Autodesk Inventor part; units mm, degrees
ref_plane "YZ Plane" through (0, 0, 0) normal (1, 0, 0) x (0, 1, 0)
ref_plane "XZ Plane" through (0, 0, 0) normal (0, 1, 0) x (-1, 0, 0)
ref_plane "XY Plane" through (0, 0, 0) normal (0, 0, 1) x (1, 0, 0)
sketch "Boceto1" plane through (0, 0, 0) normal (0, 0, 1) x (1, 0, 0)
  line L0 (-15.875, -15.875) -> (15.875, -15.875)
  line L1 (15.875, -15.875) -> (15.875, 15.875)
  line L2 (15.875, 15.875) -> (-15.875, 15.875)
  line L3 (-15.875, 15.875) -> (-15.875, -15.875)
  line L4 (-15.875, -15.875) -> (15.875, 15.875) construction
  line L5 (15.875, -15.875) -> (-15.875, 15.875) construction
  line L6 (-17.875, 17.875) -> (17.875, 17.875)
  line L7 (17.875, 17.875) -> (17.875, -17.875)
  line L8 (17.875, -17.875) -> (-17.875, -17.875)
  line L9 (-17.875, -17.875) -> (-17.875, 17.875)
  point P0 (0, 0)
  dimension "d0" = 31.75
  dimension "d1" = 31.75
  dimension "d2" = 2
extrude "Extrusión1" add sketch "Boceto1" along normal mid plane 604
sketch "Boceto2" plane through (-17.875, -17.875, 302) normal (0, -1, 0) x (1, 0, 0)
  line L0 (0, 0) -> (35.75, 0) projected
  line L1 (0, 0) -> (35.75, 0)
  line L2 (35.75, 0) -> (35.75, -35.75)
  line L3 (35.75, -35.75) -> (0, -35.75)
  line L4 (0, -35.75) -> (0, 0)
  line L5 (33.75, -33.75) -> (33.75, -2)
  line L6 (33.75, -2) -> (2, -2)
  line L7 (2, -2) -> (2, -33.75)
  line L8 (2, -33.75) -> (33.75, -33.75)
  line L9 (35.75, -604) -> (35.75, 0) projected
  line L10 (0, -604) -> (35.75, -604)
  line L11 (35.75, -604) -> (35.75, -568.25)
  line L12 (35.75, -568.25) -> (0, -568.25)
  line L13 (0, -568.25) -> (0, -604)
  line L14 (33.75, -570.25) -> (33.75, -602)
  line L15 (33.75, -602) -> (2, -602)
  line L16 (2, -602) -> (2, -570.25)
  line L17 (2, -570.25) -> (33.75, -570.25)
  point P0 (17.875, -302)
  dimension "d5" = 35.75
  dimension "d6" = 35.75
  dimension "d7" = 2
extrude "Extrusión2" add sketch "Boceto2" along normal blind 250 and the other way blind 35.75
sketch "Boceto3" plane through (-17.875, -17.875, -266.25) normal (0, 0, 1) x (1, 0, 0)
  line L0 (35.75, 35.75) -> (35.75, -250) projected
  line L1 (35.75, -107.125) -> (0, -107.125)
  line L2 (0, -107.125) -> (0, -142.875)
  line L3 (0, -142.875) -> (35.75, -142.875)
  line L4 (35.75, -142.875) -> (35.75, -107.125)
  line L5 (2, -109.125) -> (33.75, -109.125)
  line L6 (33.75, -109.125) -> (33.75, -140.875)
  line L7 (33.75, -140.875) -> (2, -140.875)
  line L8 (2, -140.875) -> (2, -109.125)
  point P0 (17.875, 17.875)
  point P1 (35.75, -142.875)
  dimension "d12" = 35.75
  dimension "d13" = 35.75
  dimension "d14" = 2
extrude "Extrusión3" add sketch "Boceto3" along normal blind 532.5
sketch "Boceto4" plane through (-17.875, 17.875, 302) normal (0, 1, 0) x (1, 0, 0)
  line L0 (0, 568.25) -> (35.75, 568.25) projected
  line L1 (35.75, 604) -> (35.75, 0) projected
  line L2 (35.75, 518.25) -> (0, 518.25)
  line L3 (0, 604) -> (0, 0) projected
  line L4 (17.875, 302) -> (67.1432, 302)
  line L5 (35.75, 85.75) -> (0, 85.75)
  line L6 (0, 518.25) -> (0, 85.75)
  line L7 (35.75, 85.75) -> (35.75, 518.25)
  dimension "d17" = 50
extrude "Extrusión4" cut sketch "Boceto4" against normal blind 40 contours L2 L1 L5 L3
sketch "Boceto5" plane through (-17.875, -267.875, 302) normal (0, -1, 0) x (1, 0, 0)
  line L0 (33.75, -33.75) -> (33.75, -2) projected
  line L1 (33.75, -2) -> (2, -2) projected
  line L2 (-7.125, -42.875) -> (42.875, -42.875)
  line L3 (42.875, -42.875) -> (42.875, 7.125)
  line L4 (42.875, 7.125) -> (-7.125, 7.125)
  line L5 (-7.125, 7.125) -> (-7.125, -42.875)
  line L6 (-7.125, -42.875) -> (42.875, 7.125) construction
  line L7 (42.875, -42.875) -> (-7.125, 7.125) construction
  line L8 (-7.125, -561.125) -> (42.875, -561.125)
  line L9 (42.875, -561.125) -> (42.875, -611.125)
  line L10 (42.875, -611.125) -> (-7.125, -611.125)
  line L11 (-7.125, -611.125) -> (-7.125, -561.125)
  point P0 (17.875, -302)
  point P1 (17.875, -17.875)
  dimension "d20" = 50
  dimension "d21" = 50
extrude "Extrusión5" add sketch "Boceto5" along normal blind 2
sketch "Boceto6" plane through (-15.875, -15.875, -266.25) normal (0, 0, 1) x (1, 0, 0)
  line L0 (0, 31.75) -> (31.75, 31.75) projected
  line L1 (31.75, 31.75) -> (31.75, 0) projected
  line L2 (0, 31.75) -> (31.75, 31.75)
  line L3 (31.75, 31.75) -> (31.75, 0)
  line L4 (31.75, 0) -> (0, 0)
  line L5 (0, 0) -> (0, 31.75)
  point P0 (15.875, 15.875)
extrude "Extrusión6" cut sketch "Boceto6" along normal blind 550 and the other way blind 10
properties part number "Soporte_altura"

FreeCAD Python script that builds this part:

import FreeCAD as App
import Part
import Sketcher
from FreeCAD import Vector
Q = App.Units.Quantity


def add_polygon(sketch, points):
    """Adds a closed chain of lines whose ends are joined by coincident constraints."""
    first, n = sketch.GeometryCount, len(points)
    for a, b in zip(points, points[1:] + points[:1]):
        sketch.addGeometry(Part.LineSegment(App.Vector(*a, 0), App.Vector(*b, 0)), False)
    for i in range(n):
        sketch.addConstraint(Sketcher.Constraint("Coincident", first + i, 2, first + (i + 1) % n, 1))

doc = App.newDocument("Part")
params = doc.addObject("Spreadsheet::Sheet", "Params")
for row, (alias, value) in enumerate([
    ("sketch1_width", "31.75 mm"),
    ("pad1_length", "604 mm"),
    ("sketch2_width", "35.75 mm"),
    ("pad2_length", "250 mm"),
    ("pad2_length2", "35.75 mm"),
    ("sketch3_width", "35.75 mm"),
    ("pad3_length", "532.5 mm"),
    ("sketch4_height", "432.5 mm"),
    ("sketch4_width", "35.75 mm"),
    ("pocket1_length", "40 mm"),
    ("sketch5_width", "50 mm"),
    ("pad4_length", "2 mm"),
    ("sketch6_width", "31.75 mm"),
    ("pocket2_length", "550 mm"),
    ("pocket2_length2", "10 mm"),
], start=1):
    params.set(f"A{row}", alias)
    params.set(f"B{row}", "=" + value)
    params.setAlias(f"B{row}", alias)

body = doc.addObject("PartDesign::Body", "Body")

sketch1 = body.newObject("Sketcher::SketchObject", "Sketch")
sketch1.AttachmentSupport = (doc.getObject("XY_Plane"), [""])
sketch1.MapMode = "FlatFace"
add_polygon(sketch1, [(18, 18), (-18, 18), (-18, -18), (18, -18)])
add_polygon(sketch1, [(16, -16), (-16, -16), (-16, 16), (16, 16)])
sketch1.addConstraint(Sketcher.Constraint("Horizontal", 0))
sketch1.addConstraint(Sketcher.Constraint("Vertical", 1))
sketch1.addConstraint(Sketcher.Constraint("Horizontal", 2))
sketch1.addConstraint(Sketcher.Constraint("Vertical", 3))
sketch1.addConstraint(Sketcher.Constraint("Horizontal", 4))
sketch1.addConstraint(Sketcher.Constraint("Vertical", 5))
sketch1.addConstraint(Sketcher.Constraint("Horizontal", 6))
sketch1.addConstraint(Sketcher.Constraint("Vertical", 7))
sketch1.addConstraint(Sketcher.Constraint("Symmetric", 0, 2, 2, 2, -1, 1))
sketch1.addConstraint(Sketcher.Constraint("Symmetric", 4, 2, 6, 2, -1, 1))
sketch1.addConstraint(Sketcher.Constraint("Equal", 2, 1))
sketch1.addConstraint(Sketcher.Constraint("Equal", 6, 5))
sketch1.addConstraint(Sketcher.Constraint("DistanceX", 1, 2, 4, 2, Q("2 mm")))
sketch1.addConstraint(Sketcher.Constraint("DistanceX", 4, 2, 4, 1, Q("31.75 mm")))
sketch1.setExpression("Constraints[21]", "Params.sketch1_width")
pad1 = body.newObject("PartDesign::Pad", "Pad")
pad1.Profile = sketch1
pad1.setExpression("Length", "Params.pad1_length")
pad1.Midplane = True

sketch2 = body.newObject("Sketcher::SketchObject", "Sketch001")
sketch2.AttachmentSupport = (doc.getObject("XZ_Plane"), [""])
sketch2.MapMode = "FlatFace"
sketch2.AttachmentOffset = App.Placement(Vector(0, 0, 17.875), App.Rotation())
add_polygon(sketch2, [(18, -302), (18, -266), (-18, -266), (-18, -302)])
add_polygon(sketch2, [(-16, -268), (16, -268), (16, -300), (-16, -300)])
add_polygon(sketch2, [(18, 302), (-18, 302), (-18, 266), (18, 266)])
add_polygon(sketch2, [(16, 300), (16, 268), (-16, 268), (-16, 300)])
sketch2.addConstraint(Sketcher.Constraint("Vertical", 0))
sketch2.addConstraint(Sketcher.Constraint("Horizontal", 1))
sketch2.addConstraint(Sketcher.Constraint("Vertical", 2))
sketch2.addConstraint(Sketcher.Constraint("Horizontal", 3))
sketch2.addConstraint(Sketcher.Constraint("Horizontal", 4))
sketch2.addConstraint(Sketcher.Constraint("Vertical", 5))
sketch2.addConstraint(Sketcher.Constraint("Horizontal", 6))
sketch2.addConstraint(Sketcher.Constraint("Vertical", 7))
sketch2.addConstraint(Sketcher.Constraint("Horizontal", 8))
sketch2.addConstraint(Sketcher.Constraint("Vertical", 9))
sketch2.addConstraint(Sketcher.Constraint("Horizontal", 10))
sketch2.addConstraint(Sketcher.Constraint("Vertical", 11))
sketch2.addConstraint(Sketcher.Constraint("Vertical", 12))
sketch2.addConstraint(Sketcher.Constraint("Horizontal", 13))
sketch2.addConstraint(Sketcher.Constraint("Vertical", 14))
sketch2.addConstraint(Sketcher.Constraint("Horizontal", 15))
sketch2.addConstraint(Sketcher.Constraint("Symmetric", 3, 2, 8, 2, -1, 1))
sketch2.addConstraint(Sketcher.Constraint("Symmetric", 1, 2, 10, 2, -1, 1))
sketch2.addConstraint(Sketcher.Constraint("Symmetric", 7, 2, 12, 2, -1, 1))
sketch2.addConstraint(Sketcher.Constraint("Symmetric", 5, 2, 14, 2, -1, 1))
sketch2.addConstraint(Sketcher.Constraint("Vertical", 2, 2, 8, 2))
sketch2.addConstraint(Sketcher.Constraint("Vertical", 5, 2, 12, 2))
sketch2.addConstraint(Sketcher.Constraint("Equal", 10, 0))
sketch2.addConstraint(Sketcher.Constraint("Equal", 15, 5))
sketch2.addConstraint(Sketcher.Constraint("DistanceX", 4, 2, 0, 2, Q("2 mm")))
sketch2.addConstraint(Sketcher.Constraint("DistanceY", 4, 2, 0, 2, Q("2 mm")))
sketch2.addConstraint(Sketcher.Constraint("DistanceX", 1, 2, 1, 1, Q("35.75 mm")))
sketch2.addConstraint(Sketcher.Constraint("DistanceY", 2, 2, -1, 1, Q("302 mm")))
sketch2.setExpression("Constraints[42]", "Params.sketch2_width")
pad2 = body.newObject("PartDesign::Pad", "Pad001")
pad2.Profile = sketch2
pad2.Type = "TwoLengths"
pad2.setExpression("Length", "Params.pad2_length")
pad2.setExpression("Length2", "Params.pad2_length2")

sketch3 = body.newObject("Sketcher::SketchObject", "Sketch002")
sketch3.AttachmentSupport = (doc.getObject("XY_Plane"), [""])
sketch3.MapMode = "FlatFace"
sketch3.AttachmentOffset = App.Placement(Vector(0, 0, -266.25), App.Rotation())
add_polygon(sketch3, [(18, -161), (18, -125), (-18, -125), (-18, -161)])
add_polygon(sketch3, [(-16, -159), (-16, -127), (16, -127), (16, -159)])
sketch3.addConstraint(Sketcher.Constraint("Vertical", 0))
sketch3.addConstraint(Sketcher.Constraint("Horizontal", 1))
sketch3.addConstraint(Sketcher.Constraint("Vertical", 2))
sketch3.addConstraint(Sketcher.Constraint("Horizontal", 3))
sketch3.addConstraint(Sketcher.Constraint("Vertical", 4))
sketch3.addConstraint(Sketcher.Constraint("Horizontal", 5))
sketch3.addConstraint(Sketcher.Constraint("Vertical", 6))
sketch3.addConstraint(Sketcher.Constraint("Horizontal", 7))
sketch3.addConstraint(Sketcher.Constraint("Equal", 3, 0))
sketch3.addConstraint(Sketcher.Constraint("Equal", 7, 4))
sketch3.addConstraint(Sketcher.Constraint("DistanceX", 1, 2, 4, 2, Q("2 mm")))
sketch3.addConstraint(Sketcher.Constraint("DistanceY", 4, 2, 1, 2, Q("2 mm")))
sketch3.addConstraint(Sketcher.Constraint("DistanceX", 5, 2, 0, 2, Q("2 mm")))
sketch3.addConstraint(Sketcher.Constraint("DistanceX", 1, 2, 1, 1, Q("35.75 mm")))
sketch3.addConstraint(Sketcher.Constraint("DistanceY", 0, 2, -1, 1, Q("125 mm")))
sketch3.addConstraint(Sketcher.Constraint("DistanceX", -1, 1, 0, 2, Q("17.875 mm")))
sketch3.setExpression("Constraints[21]", "Params.sketch3_width")
pad3 = body.newObject("PartDesign::Pad", "Pad002")
pad3.Profile = sketch3
pad3.setExpression("Length", "Params.pad3_length")

sketch4 = body.newObject("Sketcher::SketchObject", "Sketch003")
sketch4.AttachmentSupport = (doc.getObject("XZ_Plane"), [""])
sketch4.MapMode = "FlatFace"
sketch4.AttachmentOffset = App.Placement(Vector(0, 0, -17.875), App.Rotation())
add_polygon(sketch4, [(18, -216), (-18, -216), (-18, 216), (18, 216)])
sketch4.addConstraint(Sketcher.Constraint("Horizontal", 0))
sketch4.addConstraint(Sketcher.Constraint("Vertical", 1))
sketch4.addConstraint(Sketcher.Constraint("Horizontal", 2))
sketch4.addConstraint(Sketcher.Constraint("Vertical", 3))
sketch4.addConstraint(Sketcher.Constraint("Symmetric", 0, 2, 2, 2, -1, 1))
sketch4.addConstraint(Sketcher.Constraint("DistanceY", 1, 1, 1, 2, Q("432.5 mm")))
sketch4.addConstraint(Sketcher.Constraint("DistanceX", 0, 2, 0, 1, Q("35.75 mm")))
sketch4.setExpression("Constraints[9]", "Params.sketch4_height")
sketch4.setExpression("Constraints[10]", "Params.sketch4_width")
pocket1 = body.newObject("PartDesign::Pocket", "Pocket")
pocket1.Profile = sketch4
pocket1.setExpression("Length", "Params.pocket1_length")
pocket1.Reversed = True

sketch5 = body.newObject("Sketcher::SketchObject", "Sketch004")
sketch5.AttachmentSupport = (doc.getObject("XZ_Plane"), [""])
sketch5.MapMode = "FlatFace"
sketch5.AttachmentOffset = App.Placement(Vector(0, 0, 267.875), App.Rotation())
add_polygon(sketch5, [(-25, 309), (-25, 259), (25, 259), (25, 309)])
add_polygon(sketch5, [(25, -259), (-25, -259), (-25, -309), (25, -309)])
sketch5.addConstraint(Sketcher.Constraint("Vertical", 0))
sketch5.addConstraint(Sketcher.Constraint("Horizontal", 1))
sketch5.addConstraint(Sketcher.Constraint("Vertical", 2))
sketch5.addConstraint(Sketcher.Constraint("Horizontal", 3))
sketch5.addConstraint(Sketcher.Constraint("Horizontal", 4))
sketch5.addConstraint(Sketcher.Constraint("Vertical", 5))
sketch5.addConstraint(Sketcher.Constraint("Horizontal", 6))
sketch5.addConstraint(Sketcher.Constraint("Vertical", 7))
sketch5.addConstraint(Sketcher.Constraint("Symmetric", 1, 2, 4, 2, -1, 1))
sketch5.addConstraint(Sketcher.Constraint("Symmetric", 3, 2, 6, 2, -1, 1))
sketch5.addConstraint(Sketcher.Constraint("Vertical", 3, 2, 4, 2))
sketch5.addConstraint(Sketcher.Constraint("Equal", 6, 0))
sketch5.addConstraint(Sketcher.Constraint("DistanceX", 1, 1, 1, 2, Q("50 mm")))
sketch5.addConstraint(Sketcher.Constraint("DistanceY", 4, 2, 0, 2, Q("518.25 mm")))
sketch5.setExpression("Constraints[20]", "Params.sketch5_width")
pad4 = body.newObject("PartDesign::Pad", "Pad003")
pad4.Profile = sketch5
pad4.setExpression("Length", "Params.pad4_length")

sketch6 = body.newObject("Sketcher::SketchObject", "Sketch005")
sketch6.AttachmentSupport = (doc.getObject("XY_Plane"), [""])
sketch6.MapMode = "FlatFace"
sketch6.AttachmentOffset = App.Placement(Vector(0, 0, -266.25), App.Rotation())
add_polygon(sketch6, [(16, 16), (-16, 16), (-16, -16), (16, -16)])
sketch6.addConstraint(Sketcher.Constraint("Horizontal", 0))
sketch6.addConstraint(Sketcher.Constraint("Vertical", 1))
sketch6.addConstraint(Sketcher.Constraint("Horizontal", 2))
sketch6.addConstraint(Sketcher.Constraint("Vertical", 3))
sketch6.addConstraint(Sketcher.Constraint("Symmetric", 0, 2, 2, 2, -1, 1))
sketch6.addConstraint(Sketcher.Constraint("Equal", 2, 1))
sketch6.addConstraint(Sketcher.Constraint("DistanceX", 0, 2, 0, 1, Q("31.75 mm")))
sketch6.setExpression("Constraints[10]", "Params.sketch6_width")
pocket2 = body.newObject("PartDesign::Pocket", "Pocket001")
pocket2.Profile = sketch6
pocket2.Type = "TwoLengths"
pocket2.setExpression("Length", "Params.pocket2_length")
pocket2.setExpression("Length2", "Params.pocket2_length2")
pocket2.Reversed = True

doc.recompute()
